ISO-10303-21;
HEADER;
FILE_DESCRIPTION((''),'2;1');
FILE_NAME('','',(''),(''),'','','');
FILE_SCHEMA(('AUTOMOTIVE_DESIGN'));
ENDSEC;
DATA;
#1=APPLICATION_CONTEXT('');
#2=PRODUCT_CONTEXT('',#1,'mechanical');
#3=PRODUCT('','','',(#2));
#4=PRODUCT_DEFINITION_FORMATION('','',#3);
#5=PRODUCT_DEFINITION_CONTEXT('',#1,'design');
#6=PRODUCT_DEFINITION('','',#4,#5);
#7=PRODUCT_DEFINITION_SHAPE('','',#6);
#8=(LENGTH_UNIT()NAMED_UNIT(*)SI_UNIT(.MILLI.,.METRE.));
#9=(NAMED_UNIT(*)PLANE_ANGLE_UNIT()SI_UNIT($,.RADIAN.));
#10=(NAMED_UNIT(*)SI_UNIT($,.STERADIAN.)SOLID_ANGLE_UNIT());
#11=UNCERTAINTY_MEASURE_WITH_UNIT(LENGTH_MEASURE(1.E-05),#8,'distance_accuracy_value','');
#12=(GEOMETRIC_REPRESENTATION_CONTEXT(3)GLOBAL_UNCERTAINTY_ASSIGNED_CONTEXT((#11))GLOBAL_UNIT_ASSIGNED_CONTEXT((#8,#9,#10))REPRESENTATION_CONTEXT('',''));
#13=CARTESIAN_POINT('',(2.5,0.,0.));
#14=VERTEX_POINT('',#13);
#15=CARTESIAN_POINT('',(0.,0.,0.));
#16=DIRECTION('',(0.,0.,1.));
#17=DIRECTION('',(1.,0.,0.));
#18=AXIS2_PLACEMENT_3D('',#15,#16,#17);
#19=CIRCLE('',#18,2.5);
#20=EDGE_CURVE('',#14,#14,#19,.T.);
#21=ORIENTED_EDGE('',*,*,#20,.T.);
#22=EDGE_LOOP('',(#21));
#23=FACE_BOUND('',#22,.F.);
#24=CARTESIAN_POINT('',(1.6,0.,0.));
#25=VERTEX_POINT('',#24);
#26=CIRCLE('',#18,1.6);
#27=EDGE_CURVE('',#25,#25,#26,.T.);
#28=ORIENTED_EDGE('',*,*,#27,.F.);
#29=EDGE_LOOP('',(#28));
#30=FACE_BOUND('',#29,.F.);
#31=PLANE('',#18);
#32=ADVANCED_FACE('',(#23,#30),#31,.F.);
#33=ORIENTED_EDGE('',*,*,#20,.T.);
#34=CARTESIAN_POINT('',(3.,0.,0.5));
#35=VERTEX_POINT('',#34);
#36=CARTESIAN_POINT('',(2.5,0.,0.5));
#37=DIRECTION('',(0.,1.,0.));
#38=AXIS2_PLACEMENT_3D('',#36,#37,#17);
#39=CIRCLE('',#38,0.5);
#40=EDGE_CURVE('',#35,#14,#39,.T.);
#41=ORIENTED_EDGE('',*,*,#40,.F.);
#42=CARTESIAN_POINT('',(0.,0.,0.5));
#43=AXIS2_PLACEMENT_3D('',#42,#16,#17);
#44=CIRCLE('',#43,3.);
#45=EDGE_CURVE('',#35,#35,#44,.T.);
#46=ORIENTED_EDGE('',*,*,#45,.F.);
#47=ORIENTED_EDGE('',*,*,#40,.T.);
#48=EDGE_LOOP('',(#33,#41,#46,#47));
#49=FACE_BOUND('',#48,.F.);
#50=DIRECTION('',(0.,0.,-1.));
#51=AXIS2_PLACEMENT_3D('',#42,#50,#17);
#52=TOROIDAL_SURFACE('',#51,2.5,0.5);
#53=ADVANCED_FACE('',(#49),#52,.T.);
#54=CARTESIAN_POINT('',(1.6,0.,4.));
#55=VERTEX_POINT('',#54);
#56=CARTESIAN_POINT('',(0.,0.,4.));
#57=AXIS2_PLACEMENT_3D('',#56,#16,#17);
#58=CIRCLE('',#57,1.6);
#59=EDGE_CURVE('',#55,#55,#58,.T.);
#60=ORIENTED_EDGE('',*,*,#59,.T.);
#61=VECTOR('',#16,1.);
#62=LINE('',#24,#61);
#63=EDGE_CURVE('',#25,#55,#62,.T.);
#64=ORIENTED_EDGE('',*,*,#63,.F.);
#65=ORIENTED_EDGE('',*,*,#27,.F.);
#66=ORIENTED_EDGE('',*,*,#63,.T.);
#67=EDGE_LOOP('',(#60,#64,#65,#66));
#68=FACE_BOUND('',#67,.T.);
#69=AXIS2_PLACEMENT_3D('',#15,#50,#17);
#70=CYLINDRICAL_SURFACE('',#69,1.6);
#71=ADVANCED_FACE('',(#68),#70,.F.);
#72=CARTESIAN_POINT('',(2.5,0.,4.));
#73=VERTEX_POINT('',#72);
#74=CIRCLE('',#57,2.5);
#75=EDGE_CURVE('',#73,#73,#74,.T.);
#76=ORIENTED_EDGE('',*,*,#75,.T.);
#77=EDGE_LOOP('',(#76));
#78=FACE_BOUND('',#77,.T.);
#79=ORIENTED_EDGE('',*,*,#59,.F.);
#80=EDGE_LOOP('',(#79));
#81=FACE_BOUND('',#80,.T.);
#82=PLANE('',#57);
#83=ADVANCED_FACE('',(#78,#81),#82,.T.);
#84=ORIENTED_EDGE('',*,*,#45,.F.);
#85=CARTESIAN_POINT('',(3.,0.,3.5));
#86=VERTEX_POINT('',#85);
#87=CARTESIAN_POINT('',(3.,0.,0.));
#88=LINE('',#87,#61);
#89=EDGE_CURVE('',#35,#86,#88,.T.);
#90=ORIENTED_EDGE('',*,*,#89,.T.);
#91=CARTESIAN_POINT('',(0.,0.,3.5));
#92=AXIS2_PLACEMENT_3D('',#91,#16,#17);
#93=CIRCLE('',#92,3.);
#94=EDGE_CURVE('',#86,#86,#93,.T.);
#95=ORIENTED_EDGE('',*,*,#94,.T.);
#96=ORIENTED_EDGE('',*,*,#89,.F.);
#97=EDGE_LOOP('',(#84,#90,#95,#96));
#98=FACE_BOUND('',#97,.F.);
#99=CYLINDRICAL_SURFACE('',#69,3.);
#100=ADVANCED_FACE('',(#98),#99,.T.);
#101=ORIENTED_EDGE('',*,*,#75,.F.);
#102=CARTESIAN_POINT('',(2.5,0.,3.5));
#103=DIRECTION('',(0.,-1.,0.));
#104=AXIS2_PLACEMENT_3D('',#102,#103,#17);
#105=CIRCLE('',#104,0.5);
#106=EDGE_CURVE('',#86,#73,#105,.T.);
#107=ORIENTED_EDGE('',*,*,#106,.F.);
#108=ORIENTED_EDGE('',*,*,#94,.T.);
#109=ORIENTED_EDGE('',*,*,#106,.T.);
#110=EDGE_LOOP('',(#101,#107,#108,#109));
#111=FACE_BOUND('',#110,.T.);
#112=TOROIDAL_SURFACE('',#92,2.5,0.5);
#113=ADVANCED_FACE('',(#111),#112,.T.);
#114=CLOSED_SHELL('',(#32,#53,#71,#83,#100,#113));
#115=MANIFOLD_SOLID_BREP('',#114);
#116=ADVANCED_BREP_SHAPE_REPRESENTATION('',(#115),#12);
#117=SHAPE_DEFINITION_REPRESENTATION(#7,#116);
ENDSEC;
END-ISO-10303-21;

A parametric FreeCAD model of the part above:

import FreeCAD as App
import Part
import Sketcher
from FreeCAD import Vector


def edges_at(feature, points):
    """Names of the edges that pass closest to the given points."""
    edges = feature.Shape.Edges
    near = lambda p: min(range(len(edges)), key=lambda i: edges[i].distToShape(Part.Vertex(*p))[0])
    return sorted({f"Edge{near(p) + 1}" for p in points})

doc = App.newDocument("Part")
params = doc.addObject("Spreadsheet::Sheet", "Params")
for row, (alias, value) in enumerate([
    ("sketch1_diameter", "6 mm"),
    ("sketch1_diameter2", "3.2 mm"),
    ("pad1_length", "4 mm"),
    ("fillet_radius", "0.5 mm"),
], start=1):
    params.set(f"A{row}", alias)
    params.set(f"B{row}", "=" + value)
    params.setAlias(f"B{row}", alias)

body = doc.addObject("PartDesign::Body", "Body")

# Sketch on XY plane
sketch1 = body.newObject("Sketcher::SketchObject", "Sketch")
sketch1.AttachmentSupport = (doc.getObject("XY_Plane"), [""])
sketch1.MapMode = "FlatFace"
sketch1.addGeometry([
    Part.Circle(Vector(0, 0, 0), Vector(0, 0, 1), 3),
    Part.Circle(Vector(0, 0, 0), Vector(0, 0, 1), 1.6),
], False)
sketch1.addConstraint([
    Sketcher.Constraint("Coincident", 0, 3, -1, 1),
    Sketcher.Constraint("Coincident", 1, 3, -1, 1),
    Sketcher.Constraint("Diameter", 0, 6.0),
    Sketcher.Constraint("Diameter", 1, 3.2),
])
sketch1.setExpression("Constraints[2]", "Params.sketch1_diameter")
sketch1.setExpression("Constraints[3]", "Params.sketch1_diameter2")
pad1 = body.newObject("PartDesign::Pad", "Pad")
pad1.Profile = sketch1
pad1.setExpression("Length", "Params.pad1_length")
doc.recompute()

fillet = body.newObject("PartDesign::Fillet", "Fillet")
fillet.Base = (pad1, edges_at(pad1, [(-3, 0, 4), (-3, 0, 0)]))
fillet.setExpression("Radius", "Params.fillet_radius")

doc.recompute()
